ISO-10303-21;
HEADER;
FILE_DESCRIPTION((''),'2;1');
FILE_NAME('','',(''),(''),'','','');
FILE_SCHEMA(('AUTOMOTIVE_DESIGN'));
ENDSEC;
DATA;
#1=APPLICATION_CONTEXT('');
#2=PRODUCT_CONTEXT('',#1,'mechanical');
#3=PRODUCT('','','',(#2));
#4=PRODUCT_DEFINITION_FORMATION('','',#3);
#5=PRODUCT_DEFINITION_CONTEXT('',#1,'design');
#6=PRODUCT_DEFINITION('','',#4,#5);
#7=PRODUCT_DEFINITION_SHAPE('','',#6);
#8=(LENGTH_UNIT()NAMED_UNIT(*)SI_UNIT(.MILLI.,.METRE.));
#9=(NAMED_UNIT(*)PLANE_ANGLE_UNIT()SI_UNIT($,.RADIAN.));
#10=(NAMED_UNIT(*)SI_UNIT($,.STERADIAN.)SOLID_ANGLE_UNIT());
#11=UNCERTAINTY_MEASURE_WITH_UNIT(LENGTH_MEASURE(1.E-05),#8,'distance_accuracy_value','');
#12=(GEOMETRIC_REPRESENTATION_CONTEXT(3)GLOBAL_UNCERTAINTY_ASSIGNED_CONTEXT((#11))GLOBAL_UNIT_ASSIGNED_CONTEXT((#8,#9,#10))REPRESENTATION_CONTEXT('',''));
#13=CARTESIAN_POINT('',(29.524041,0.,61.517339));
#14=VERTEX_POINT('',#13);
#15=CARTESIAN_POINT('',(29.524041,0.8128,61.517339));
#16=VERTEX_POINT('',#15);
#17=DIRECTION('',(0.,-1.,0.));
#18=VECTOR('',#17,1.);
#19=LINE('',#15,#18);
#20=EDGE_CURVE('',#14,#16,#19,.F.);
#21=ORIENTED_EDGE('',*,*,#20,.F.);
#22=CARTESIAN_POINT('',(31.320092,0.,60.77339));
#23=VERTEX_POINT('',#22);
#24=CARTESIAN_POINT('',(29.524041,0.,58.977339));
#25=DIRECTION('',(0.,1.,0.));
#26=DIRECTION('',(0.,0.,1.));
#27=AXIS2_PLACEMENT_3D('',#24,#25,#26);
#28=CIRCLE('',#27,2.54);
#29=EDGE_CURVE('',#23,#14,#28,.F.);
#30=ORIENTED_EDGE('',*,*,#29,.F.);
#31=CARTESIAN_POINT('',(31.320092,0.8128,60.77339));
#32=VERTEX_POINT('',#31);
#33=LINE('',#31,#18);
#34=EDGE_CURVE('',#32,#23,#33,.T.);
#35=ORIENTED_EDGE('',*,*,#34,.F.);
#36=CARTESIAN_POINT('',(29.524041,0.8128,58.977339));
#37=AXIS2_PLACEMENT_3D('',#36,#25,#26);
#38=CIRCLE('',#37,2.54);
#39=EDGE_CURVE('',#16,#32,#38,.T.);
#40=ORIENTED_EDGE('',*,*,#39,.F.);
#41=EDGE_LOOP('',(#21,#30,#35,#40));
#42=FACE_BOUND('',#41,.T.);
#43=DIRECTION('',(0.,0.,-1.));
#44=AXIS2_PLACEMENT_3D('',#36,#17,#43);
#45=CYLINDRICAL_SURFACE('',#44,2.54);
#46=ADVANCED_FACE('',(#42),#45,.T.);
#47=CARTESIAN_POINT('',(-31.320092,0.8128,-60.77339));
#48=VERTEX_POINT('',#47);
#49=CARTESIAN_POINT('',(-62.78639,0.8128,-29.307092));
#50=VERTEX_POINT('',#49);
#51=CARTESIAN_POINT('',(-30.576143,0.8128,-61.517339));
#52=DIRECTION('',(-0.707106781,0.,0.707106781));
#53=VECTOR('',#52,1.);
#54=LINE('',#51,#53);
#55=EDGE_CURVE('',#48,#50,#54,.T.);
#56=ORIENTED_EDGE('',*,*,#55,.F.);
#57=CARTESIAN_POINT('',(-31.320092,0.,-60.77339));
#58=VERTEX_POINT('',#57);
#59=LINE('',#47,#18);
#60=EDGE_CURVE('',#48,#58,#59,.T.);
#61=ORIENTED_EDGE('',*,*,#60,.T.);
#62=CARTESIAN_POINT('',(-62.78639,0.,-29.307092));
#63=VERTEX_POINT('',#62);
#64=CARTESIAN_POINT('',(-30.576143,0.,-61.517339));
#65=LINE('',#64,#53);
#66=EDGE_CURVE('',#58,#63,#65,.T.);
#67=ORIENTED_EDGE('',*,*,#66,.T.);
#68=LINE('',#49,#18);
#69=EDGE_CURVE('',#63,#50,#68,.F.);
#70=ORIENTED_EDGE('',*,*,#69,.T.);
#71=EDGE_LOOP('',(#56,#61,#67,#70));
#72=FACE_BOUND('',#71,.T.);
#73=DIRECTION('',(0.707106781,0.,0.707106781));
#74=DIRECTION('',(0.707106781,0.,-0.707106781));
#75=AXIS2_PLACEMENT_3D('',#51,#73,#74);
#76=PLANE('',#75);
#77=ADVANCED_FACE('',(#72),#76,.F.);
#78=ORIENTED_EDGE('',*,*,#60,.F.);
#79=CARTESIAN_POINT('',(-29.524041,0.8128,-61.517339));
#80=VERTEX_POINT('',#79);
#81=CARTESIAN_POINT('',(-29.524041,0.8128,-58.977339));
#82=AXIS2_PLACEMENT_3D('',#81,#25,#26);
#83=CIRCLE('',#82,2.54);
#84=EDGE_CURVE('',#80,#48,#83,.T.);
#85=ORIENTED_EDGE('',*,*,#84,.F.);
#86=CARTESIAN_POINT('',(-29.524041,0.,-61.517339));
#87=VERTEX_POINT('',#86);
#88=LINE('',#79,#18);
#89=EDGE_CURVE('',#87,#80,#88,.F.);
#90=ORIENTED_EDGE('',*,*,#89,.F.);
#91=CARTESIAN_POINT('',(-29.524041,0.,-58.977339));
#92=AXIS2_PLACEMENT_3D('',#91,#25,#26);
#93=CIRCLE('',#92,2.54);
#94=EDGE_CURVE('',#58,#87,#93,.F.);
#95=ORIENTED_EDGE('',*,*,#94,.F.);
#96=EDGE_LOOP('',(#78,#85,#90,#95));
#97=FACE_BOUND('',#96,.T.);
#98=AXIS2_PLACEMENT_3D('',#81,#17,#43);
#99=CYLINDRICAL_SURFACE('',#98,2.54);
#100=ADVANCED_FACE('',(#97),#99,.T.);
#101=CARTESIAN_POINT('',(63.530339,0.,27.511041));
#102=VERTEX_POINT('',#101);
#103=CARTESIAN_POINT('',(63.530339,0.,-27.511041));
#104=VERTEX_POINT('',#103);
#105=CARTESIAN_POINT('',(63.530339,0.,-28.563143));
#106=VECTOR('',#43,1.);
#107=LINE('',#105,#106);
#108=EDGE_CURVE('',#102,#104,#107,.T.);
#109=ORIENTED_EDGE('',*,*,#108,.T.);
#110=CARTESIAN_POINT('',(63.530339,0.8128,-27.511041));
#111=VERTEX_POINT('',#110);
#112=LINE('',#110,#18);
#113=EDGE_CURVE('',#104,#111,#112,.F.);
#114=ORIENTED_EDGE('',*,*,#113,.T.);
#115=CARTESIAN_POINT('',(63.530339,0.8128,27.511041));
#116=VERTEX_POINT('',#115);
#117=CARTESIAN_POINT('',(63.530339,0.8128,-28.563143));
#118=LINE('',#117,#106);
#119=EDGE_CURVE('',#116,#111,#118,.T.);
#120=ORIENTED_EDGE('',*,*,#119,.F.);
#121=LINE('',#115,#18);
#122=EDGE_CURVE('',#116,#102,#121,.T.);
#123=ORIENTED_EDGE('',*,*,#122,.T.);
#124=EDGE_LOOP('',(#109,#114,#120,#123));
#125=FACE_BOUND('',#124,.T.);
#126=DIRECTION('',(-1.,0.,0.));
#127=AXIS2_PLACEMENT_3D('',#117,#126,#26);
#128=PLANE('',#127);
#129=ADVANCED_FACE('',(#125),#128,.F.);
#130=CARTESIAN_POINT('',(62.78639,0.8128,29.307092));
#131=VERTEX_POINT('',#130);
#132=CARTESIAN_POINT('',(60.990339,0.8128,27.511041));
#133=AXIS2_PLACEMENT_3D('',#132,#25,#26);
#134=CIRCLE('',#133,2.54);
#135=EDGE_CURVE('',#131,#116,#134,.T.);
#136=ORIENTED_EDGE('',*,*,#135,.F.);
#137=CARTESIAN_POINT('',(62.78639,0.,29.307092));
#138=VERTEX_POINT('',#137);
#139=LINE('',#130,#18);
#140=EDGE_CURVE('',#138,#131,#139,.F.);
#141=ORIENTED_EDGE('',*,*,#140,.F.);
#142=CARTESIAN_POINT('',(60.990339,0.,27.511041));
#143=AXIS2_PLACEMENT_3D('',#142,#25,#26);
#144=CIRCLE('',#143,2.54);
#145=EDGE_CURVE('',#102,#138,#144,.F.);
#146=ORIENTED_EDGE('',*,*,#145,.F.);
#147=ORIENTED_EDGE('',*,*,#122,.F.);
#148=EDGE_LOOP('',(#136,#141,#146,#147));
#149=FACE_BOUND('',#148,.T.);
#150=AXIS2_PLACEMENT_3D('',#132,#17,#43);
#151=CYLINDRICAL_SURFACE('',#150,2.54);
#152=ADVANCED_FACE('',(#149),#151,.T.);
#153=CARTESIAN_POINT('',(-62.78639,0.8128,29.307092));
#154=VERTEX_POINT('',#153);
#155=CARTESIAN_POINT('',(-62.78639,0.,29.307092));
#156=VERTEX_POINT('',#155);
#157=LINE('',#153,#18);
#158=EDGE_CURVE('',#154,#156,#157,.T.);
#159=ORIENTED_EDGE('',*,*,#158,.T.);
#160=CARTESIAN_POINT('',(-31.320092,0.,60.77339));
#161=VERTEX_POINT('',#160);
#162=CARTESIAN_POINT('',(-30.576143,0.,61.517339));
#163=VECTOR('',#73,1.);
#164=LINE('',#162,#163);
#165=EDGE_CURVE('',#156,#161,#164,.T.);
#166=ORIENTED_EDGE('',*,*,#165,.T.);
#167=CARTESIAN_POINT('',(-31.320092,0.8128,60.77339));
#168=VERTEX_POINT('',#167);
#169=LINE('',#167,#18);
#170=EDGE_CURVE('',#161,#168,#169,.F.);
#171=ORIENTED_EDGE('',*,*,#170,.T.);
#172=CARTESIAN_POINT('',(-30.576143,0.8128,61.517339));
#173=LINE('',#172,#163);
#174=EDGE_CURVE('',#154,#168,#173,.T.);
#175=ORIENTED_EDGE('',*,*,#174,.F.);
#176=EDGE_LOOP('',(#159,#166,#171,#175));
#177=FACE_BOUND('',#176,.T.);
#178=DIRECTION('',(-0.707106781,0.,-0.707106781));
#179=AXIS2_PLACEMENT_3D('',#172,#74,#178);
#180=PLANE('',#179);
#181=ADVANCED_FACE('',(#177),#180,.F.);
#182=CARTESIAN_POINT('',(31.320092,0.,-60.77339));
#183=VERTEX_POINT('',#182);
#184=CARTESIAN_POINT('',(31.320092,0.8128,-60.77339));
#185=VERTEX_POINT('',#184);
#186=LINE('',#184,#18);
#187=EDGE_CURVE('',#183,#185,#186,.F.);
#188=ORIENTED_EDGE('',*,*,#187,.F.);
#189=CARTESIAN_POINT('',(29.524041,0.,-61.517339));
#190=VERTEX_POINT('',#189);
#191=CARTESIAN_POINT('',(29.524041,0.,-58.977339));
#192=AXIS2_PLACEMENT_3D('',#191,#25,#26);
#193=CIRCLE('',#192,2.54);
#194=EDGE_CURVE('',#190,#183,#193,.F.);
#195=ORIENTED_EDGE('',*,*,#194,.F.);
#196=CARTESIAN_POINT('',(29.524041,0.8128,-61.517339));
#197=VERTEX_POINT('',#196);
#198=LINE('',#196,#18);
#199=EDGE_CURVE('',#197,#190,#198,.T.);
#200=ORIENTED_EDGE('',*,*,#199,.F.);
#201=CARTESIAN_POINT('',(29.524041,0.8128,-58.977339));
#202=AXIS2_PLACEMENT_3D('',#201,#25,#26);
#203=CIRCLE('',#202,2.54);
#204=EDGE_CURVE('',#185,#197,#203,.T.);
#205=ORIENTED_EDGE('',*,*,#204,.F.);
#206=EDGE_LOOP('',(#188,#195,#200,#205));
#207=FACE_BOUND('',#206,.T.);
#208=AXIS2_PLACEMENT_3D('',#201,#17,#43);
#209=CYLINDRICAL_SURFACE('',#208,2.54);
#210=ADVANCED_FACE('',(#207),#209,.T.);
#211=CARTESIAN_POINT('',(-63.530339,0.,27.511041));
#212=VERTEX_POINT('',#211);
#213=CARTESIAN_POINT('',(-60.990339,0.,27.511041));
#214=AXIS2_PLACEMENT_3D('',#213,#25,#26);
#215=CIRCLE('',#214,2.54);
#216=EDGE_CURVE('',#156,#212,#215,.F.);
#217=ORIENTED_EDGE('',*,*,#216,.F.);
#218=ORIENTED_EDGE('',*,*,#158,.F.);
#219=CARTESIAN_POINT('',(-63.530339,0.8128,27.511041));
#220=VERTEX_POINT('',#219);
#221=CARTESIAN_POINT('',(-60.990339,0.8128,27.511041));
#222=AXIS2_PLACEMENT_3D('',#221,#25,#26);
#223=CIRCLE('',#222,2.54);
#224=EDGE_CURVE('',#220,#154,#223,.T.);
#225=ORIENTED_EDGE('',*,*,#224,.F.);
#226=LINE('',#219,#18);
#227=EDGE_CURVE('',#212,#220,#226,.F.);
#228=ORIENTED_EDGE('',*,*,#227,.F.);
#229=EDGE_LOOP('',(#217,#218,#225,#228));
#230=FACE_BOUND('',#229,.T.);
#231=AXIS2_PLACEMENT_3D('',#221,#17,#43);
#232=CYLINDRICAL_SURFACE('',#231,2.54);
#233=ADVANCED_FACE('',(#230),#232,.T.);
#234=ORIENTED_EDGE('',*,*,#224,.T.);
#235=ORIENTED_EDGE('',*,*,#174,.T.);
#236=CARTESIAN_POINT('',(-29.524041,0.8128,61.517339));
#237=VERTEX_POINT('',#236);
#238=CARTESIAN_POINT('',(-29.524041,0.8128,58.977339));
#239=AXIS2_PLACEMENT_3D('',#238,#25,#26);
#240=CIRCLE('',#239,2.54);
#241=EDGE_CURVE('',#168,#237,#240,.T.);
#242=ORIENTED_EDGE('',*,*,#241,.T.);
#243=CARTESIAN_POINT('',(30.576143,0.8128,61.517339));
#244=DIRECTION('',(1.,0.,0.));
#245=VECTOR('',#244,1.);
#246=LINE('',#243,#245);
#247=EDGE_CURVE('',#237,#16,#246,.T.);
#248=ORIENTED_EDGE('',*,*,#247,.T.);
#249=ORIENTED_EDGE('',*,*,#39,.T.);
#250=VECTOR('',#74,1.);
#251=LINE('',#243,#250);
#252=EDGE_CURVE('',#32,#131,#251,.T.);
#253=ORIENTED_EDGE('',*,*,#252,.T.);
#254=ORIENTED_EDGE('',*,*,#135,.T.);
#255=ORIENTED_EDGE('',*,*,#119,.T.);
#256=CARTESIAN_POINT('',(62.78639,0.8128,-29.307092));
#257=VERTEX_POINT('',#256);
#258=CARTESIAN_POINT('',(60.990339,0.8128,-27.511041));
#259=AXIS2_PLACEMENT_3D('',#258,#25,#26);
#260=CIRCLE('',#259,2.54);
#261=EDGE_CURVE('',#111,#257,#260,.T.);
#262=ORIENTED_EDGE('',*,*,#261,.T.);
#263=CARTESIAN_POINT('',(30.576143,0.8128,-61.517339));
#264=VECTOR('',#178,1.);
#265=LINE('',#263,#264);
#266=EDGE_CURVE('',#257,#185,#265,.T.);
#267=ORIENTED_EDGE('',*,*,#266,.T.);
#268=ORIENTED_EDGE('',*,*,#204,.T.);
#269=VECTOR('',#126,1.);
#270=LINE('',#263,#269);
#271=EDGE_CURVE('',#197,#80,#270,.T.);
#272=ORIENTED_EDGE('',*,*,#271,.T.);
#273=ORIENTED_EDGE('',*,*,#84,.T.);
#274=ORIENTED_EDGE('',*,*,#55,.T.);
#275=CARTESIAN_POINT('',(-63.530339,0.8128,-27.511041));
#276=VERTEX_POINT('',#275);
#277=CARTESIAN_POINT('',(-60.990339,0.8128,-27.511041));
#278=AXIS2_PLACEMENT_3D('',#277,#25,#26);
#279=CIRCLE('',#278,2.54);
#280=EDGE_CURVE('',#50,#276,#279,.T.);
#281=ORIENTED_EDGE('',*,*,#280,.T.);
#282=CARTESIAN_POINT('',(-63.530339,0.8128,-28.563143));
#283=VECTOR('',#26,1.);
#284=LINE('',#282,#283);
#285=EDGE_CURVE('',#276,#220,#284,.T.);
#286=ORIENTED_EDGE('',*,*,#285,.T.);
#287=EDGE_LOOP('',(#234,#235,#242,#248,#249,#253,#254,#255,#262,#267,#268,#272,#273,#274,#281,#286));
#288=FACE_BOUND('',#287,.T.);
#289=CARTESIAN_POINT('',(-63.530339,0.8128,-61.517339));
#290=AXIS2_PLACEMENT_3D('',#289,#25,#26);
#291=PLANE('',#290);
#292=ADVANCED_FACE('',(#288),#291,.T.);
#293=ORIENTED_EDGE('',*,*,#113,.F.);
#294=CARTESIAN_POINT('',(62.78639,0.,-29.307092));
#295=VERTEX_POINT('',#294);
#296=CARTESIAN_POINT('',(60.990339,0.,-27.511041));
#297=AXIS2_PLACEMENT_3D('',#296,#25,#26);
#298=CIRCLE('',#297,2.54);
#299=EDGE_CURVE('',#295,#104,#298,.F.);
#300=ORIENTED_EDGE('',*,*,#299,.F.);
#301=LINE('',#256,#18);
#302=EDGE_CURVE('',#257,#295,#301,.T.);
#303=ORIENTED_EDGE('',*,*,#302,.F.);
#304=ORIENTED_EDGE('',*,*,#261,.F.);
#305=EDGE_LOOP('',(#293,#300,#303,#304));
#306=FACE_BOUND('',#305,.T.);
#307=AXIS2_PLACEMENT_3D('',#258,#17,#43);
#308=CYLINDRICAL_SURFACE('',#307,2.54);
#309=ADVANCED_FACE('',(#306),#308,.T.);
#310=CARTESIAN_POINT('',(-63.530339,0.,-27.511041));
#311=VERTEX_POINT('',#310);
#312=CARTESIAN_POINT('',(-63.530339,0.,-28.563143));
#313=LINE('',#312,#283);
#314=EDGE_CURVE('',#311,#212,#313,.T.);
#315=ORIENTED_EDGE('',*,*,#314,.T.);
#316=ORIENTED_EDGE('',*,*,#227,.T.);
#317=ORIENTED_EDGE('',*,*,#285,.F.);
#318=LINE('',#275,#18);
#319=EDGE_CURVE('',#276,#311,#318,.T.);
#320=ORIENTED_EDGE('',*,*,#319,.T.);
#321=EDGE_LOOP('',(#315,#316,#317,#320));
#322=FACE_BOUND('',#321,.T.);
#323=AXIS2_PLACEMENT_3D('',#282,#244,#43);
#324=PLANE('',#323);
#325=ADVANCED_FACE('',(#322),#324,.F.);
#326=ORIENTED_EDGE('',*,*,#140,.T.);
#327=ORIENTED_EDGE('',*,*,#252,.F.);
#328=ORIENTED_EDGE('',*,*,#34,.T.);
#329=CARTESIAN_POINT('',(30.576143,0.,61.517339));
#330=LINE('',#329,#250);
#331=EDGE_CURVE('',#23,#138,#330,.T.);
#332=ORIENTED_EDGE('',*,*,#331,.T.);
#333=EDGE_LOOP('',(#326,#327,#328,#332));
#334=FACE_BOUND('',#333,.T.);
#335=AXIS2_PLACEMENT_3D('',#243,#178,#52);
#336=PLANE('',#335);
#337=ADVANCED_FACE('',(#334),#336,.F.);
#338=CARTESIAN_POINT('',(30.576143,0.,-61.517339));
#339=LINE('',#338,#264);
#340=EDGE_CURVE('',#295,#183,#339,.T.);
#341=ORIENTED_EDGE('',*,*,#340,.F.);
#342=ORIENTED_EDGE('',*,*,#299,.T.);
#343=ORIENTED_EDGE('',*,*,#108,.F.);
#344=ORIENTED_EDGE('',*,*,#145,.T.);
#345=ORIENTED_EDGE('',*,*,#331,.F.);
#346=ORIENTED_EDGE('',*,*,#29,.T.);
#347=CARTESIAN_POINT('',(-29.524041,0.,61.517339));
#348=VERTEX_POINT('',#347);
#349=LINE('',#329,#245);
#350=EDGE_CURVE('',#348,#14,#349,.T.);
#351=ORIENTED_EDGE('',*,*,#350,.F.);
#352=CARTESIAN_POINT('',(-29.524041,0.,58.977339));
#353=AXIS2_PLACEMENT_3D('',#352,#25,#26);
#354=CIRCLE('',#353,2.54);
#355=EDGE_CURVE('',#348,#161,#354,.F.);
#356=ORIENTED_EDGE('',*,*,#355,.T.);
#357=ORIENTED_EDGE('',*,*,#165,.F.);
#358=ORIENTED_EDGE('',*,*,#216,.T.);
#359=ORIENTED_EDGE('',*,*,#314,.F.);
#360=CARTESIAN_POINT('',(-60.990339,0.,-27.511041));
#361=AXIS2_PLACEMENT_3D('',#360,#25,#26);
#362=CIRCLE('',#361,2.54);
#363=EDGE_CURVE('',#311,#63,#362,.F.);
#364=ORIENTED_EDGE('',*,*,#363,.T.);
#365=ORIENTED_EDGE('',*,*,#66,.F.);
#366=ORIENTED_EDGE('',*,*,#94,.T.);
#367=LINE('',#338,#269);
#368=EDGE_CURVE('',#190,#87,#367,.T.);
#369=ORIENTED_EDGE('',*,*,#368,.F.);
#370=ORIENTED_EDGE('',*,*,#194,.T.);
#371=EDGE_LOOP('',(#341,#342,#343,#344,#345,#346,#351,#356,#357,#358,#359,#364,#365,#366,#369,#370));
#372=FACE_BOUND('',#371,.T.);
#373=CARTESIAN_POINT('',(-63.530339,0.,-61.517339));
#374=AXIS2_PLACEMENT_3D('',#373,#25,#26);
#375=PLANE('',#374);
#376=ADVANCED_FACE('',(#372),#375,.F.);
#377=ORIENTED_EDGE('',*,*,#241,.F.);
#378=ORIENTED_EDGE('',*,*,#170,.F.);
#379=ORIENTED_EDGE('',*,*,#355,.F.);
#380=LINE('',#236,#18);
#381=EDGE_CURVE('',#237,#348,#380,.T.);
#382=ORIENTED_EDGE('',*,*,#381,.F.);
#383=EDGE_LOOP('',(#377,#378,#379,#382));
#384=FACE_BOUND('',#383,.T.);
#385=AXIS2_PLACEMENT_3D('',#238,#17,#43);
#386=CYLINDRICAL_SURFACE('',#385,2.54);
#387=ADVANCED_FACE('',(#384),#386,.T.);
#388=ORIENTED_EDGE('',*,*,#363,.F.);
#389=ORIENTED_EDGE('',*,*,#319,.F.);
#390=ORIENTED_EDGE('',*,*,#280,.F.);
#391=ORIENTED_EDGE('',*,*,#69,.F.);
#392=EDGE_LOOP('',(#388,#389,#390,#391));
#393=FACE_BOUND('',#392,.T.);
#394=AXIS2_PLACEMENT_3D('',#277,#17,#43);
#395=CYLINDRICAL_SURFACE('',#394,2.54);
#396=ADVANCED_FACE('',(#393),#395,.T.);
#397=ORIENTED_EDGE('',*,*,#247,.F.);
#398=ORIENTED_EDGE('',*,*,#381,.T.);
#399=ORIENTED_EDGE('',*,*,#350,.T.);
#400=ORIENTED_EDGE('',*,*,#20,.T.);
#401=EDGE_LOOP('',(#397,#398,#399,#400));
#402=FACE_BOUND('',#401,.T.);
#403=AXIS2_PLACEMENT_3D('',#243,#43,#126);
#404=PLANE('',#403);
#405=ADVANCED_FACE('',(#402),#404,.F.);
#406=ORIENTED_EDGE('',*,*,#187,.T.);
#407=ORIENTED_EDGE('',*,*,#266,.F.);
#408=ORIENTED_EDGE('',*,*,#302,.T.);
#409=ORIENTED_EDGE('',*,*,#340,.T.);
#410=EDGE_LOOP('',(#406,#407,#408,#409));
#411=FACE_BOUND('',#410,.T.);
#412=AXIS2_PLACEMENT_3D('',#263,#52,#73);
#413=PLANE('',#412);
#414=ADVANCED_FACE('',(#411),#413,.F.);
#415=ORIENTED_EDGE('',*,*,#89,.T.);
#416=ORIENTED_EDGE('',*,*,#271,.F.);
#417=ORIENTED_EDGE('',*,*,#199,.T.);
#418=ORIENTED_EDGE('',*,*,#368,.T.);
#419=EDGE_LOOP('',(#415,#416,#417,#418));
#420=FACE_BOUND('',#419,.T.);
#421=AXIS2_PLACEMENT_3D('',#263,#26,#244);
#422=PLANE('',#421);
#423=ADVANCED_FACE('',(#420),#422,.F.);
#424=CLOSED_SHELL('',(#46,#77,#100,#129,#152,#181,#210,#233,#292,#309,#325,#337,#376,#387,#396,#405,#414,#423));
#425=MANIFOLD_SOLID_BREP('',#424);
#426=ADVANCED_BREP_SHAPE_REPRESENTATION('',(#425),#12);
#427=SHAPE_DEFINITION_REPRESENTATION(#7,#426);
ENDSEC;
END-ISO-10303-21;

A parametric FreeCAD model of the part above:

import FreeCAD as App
import Part
import Sketcher
from FreeCAD import Vector
Q = App.Units.Quantity


def edges_at(feature, points):
    """Names of the edges that pass closest to the given points."""
    edges = feature.Shape.Edges
    near = lambda p: min(range(len(edges)), key=lambda i: edges[i].distToShape(Part.Vertex(*p))[0])
    return sorted({f"Edge{near(p) + 1}" for p in points})

doc = App.newDocument("Part")
body = doc.addObject("PartDesign::Body", "Body")

# Sketch on XZ plane
sketch1 = body.newObject("Sketcher::SketchObject", "Sketch")
sketch1.AttachmentSupport = (doc.getObject("XZ_Plane"), [""])
sketch1.MapMode = "FlatFace"
sketch1.addGeometry([
    Part.LineSegment(Vector(-31, -62, 0), Vector(-64, -29, 0)),  # 0
    Part.LineSegment(Vector(-64, -29, 0), Vector(-64, 29, 0)),  # 1
    Part.LineSegment(Vector(-64, 29, 0), Vector(-31, 62, 0)),  # 2
    Part.LineSegment(Vector(-31, 62, 0), Vector(31, 62, 0)),  # 3
    Part.LineSegment(Vector(31, 62, 0), Vector(64, 29, 0)),  # 4
    Part.LineSegment(Vector(64, 29, 0), Vector(64, -29, 0)),  # 5
    Part.LineSegment(Vector(64, -29, 0), Vector(31, -62, 0)),  # 6
    Part.LineSegment(Vector(31, -62, 0), Vector(-31, -62, 0)),  # 7
], False)
sketch1.addConstraint([
    Sketcher.Constraint("Coincident", 0, 2, 1, 1),
    Sketcher.Constraint("Coincident", 1, 2, 2, 1),
    Sketcher.Constraint("Coincident", 2, 2, 3, 1),
    Sketcher.Constraint("Coincident", 3, 2, 4, 1),
    Sketcher.Constraint("Coincident", 4, 2, 5, 1),
    Sketcher.Constraint("Coincident", 5, 2, 6, 1),
    Sketcher.Constraint("Coincident", 6, 2, 7, 1),
    Sketcher.Constraint("Coincident", 7, 2, 0, 1),
    Sketcher.Constraint("Vertical", 1),
    Sketcher.Constraint("Horizontal", 3),
    Sketcher.Constraint("Vertical", 5),
    Sketcher.Constraint("Horizontal", 7),
    Sketcher.Constraint("Symmetric", 0, 2, 4, 2, -1, 1),
    Sketcher.Constraint("Symmetric", 2, 2, 6, 2, -1, 1),
    Sketcher.Constraint("Perpendicular", 0, 2),
    Sketcher.Constraint("Perpendicular", 2, 4),
    Sketcher.Constraint("Perpendicular", 4, 6),
    Sketcher.Constraint("Horizontal", 1, 2, 4, 2),
    Sketcher.Constraint("Vertical", 3, 2, 6, 2),
    Sketcher.Constraint("Distance", 0, Q("46.604271 mm")),
    Sketcher.Constraint("DistanceX", 3, 1, 3, 2, Q("61.152286 mm")),
    Sketcher.Constraint("DistanceY", 1, 1, 1, 2, Q("57.126286 mm")),
])
pad1 = body.newObject("PartDesign::Pad", "Pad")
pad1.Profile = sketch1
pad1.Length = Q("0.032 in")
pad1.Reversed = True
doc.recompute()

fillet = body.newObject("PartDesign::Fillet", "Fillet")
fillet.Base = (pad1, edges_at(pad1, [
    (30.576, 0.406, -61.517),
    (63.53, 0.406, -28.563),
    (63.53, 0.406, 28.563),
    (30.576, 0.406, 61.517),
    (-30.576, 0.406, 61.517),
    (-63.53, 0.406, 28.563),
    (-63.53, 0.406, -28.563),
    (-30.576, 0.406, -61.517),
]))
fillet.Radius = Q("0.1 in")

doc.recompute()
